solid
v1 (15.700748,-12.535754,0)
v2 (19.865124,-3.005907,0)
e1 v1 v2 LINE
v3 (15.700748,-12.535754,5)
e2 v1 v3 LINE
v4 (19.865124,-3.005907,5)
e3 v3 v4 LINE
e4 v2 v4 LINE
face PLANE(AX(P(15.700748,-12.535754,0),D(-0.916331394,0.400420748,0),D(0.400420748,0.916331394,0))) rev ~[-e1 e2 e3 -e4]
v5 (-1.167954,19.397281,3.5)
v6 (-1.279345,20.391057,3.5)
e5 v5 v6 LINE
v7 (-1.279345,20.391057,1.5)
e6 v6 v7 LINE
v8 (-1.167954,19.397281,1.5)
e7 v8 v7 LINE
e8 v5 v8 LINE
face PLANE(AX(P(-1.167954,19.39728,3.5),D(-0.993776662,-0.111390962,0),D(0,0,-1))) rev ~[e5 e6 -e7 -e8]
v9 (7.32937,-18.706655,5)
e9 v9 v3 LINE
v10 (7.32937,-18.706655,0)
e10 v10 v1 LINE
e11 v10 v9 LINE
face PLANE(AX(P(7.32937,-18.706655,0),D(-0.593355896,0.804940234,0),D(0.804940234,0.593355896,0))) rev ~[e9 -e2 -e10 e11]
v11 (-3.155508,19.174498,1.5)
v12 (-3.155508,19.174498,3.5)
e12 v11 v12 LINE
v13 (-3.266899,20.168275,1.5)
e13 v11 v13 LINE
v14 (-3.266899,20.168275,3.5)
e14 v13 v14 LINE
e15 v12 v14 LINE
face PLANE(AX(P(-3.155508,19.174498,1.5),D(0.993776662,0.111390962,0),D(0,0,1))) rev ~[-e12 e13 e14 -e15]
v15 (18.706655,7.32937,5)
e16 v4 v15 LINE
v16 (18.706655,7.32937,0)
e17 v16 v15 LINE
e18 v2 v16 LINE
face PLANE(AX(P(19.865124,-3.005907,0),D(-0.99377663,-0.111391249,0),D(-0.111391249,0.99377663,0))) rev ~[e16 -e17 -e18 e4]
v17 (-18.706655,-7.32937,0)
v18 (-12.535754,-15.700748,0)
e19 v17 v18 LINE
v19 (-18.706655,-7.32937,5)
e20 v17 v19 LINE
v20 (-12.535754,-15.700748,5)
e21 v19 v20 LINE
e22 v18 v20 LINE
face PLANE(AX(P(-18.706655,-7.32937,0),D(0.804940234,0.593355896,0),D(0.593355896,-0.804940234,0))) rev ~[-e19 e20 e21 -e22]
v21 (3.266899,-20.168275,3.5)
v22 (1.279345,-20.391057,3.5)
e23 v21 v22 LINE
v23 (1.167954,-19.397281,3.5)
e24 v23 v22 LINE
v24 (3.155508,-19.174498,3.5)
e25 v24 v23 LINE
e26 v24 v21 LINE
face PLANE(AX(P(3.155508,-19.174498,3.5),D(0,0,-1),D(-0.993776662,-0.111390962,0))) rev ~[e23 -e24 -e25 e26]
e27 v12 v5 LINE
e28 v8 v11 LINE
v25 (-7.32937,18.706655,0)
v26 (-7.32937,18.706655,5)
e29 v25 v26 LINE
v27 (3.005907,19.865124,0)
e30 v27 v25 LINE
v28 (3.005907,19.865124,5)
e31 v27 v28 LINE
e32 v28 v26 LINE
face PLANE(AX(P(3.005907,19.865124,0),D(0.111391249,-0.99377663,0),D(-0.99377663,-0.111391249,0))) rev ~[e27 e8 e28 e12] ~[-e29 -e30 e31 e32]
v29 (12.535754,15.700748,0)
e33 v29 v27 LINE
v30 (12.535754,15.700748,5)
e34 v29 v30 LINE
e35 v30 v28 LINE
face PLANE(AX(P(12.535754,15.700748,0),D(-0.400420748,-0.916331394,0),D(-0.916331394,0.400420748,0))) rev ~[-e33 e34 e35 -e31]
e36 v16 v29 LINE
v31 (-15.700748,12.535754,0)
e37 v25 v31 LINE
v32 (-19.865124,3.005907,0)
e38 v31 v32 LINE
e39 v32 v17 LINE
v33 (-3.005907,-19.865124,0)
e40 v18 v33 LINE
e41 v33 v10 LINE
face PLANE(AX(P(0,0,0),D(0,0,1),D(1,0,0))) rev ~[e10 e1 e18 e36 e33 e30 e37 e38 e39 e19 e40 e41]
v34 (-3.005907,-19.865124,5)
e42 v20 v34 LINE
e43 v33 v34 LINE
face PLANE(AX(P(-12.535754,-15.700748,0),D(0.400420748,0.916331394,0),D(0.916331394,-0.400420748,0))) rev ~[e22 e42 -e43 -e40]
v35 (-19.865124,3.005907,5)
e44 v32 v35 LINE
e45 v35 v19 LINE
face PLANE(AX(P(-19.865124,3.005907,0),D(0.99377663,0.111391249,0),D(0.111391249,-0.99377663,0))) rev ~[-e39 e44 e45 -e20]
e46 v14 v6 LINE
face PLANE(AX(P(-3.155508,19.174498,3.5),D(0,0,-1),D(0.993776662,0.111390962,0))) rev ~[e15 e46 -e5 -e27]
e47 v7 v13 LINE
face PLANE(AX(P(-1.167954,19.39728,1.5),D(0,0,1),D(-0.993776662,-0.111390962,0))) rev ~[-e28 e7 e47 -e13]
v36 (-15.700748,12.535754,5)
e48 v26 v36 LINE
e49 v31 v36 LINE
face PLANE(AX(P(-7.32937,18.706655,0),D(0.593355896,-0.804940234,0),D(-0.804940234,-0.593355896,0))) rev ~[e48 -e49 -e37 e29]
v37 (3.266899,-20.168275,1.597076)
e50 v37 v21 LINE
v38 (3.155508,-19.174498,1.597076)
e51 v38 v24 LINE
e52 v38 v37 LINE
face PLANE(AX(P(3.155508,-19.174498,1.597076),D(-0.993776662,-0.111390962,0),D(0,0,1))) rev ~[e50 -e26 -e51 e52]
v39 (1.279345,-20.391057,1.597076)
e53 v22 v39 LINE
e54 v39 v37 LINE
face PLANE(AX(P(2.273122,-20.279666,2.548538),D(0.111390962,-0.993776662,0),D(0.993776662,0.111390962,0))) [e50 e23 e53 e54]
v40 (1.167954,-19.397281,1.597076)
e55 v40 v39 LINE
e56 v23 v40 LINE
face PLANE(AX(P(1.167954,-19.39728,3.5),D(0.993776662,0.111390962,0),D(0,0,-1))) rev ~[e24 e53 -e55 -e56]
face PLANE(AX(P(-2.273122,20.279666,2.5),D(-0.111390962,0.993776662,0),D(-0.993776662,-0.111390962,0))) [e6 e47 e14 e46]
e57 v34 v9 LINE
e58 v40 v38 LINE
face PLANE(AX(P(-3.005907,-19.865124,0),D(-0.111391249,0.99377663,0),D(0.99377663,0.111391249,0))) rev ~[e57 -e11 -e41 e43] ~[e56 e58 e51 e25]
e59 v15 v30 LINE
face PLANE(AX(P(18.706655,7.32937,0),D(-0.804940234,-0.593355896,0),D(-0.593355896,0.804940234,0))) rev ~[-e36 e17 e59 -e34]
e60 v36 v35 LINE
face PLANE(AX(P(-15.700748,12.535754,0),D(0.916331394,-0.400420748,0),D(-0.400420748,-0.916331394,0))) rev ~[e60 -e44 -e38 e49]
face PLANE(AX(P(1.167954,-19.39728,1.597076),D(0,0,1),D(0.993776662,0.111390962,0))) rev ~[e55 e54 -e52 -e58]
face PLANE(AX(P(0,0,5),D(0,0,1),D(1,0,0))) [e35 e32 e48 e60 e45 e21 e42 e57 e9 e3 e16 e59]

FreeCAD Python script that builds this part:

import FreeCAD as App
import Part
import Sketcher

doc = App.newDocument("Part")
params = doc.addObject("Spreadsheet::Sheet", "Params")
for row, (alias, value) in enumerate([
    ("sketch1_length", "10.399999 mm"),
    ("pad1_length", "5 mm"),
    ("sketch2_width", "2 mm"),
    ("pad2_length", "1 mm"),
    ("sketch3_width", "2 mm"),
    ("pad3_length", "1 mm"),
], start=1):
    params.set(f"A{row}", alias)
    params.set(f"B{row}", "=" + value)
    params.setAlias(f"B{row}", alias)

body = doc.addObject("PartDesign::Body", "Body")

# Sketch on XY plane
sketch1 = body.newObject("Sketcher::SketchObject", "Sketch")
sketch1.AttachmentSupport = (doc.getObject("XY_Plane"), [""])
sketch1.MapMode = "FlatFace"
sketch1.addGeometry(Part.LineSegment(App.Vector(18.706655, 7.32937, 0), App.Vector(12.535754, 15.700748, 0)), False)
sketch1.addGeometry(Part.LineSegment(App.Vector(12.535754, 15.700748, 0), App.Vector(3.005907, 19.865124, 0)), False)
sketch1.addGeometry(Part.LineSegment(App.Vector(3.005907, 19.865124, 0), App.Vector(-7.32937, 18.706655, 0)), False)
sketch1.addGeometry(Part.LineSegment(App.Vector(-7.32937, 18.706655, 0), App.Vector(-15.700748, 12.535754, 0)), False)
sketch1.addGeometry(Part.LineSegment(App.Vector(-15.700748, 12.535754, 0), App.Vector(-19.865124, 3.005907, 0)), False)
sketch1.addGeometry(Part.LineSegment(App.Vector(-19.865124, 3.005907, 0), App.Vector(-18.706655, -7.32937, 0)), False)
sketch1.addGeometry(Part.LineSegment(App.Vector(-18.706655, -7.32937, 0), App.Vector(-12.535754, -15.700748, 0)), False)
sketch1.addGeometry(Part.LineSegment(App.Vector(-12.535754, -15.700748, 0), App.Vector(-3.005907, -19.865124, 0)), False)
sketch1.addGeometry(Part.LineSegment(App.Vector(-3.005907, -19.865124, 0), App.Vector(7.32937, -18.706655, 0)), False)
sketch1.addGeometry(Part.LineSegment(App.Vector(7.32937, -18.706655, 0), App.Vector(15.700748, -12.535754, 0)), False)
sketch1.addGeometry(Part.LineSegment(App.Vector(15.700748, -12.535754, 0), App.Vector(19.865124, -3.005907, 0)), False)
sketch1.addGeometry(Part.LineSegment(App.Vector(19.865124, -3.005907, 0), App.Vector(18.706655, 7.32937, 0)), False)
sketch1.addConstraint(Sketcher.Constraint("Coincident", 0, 2, 1, 1))
sketch1.addConstraint(Sketcher.Constraint("Coincident", 1, 2, 2, 1))
sketch1.addConstraint(Sketcher.Constraint("Coincident", 2, 2, 3, 1))
sketch1.addConstraint(Sketcher.Constraint("Coincident", 3, 2, 4, 1))
sketch1.addConstraint(Sketcher.Constraint("Coincident", 4, 2, 5, 1))
sketch1.addConstraint(Sketcher.Constraint("Coincident", 5, 2, 6, 1))
sketch1.addConstraint(Sketcher.Constraint("Coincident", 6, 2, 7, 1))
sketch1.addConstraint(Sketcher.Constraint("Coincident", 7, 2, 8, 1))
sketch1.addConstraint(Sketcher.Constraint("Coincident", 8, 2, 9, 1))
sketch1.addConstraint(Sketcher.Constraint("Coincident", 9, 2, 10, 1))
sketch1.addConstraint(Sketcher.Constraint("Coincident", 10, 2, 11, 1))
sketch1.addConstraint(Sketcher.Constraint("Coincident", 11, 2, 0, 1))
sketch1.addConstraint(Sketcher.Constraint("Symmetric", 0, 2, 6, 2, -1, 1))
sketch1.addConstraint(Sketcher.Constraint("Symmetric", 1, 2, 7, 2, -1, 1))
sketch1.addConstraint(Sketcher.Constraint("Symmetric", 2, 2, 8, 2, -1, 1))
sketch1.addConstraint(Sketcher.Constraint("Symmetric", 3, 2, 9, 2, -1, 1))
sketch1.addConstraint(Sketcher.Constraint("Symmetric", 4, 2, 10, 2, -1, 1))
sketch1.addConstraint(Sketcher.Constraint("Symmetric", 5, 2, 11, 2, -1, 1))
sketch1.addConstraint(Sketcher.Constraint("Perpendicular", 0, 3))
sketch1.addConstraint(Sketcher.Constraint("Perpendicular", 1, 4))
sketch1.addConstraint(Sketcher.Constraint("Perpendicular", 2, 5))
sketch1.addConstraint(Sketcher.Constraint("Equal", 0, 1))
sketch1.addConstraint(Sketcher.Constraint("Equal", 1, 2))
sketch1.addConstraint(Sketcher.Constraint("Equal", 2, 3))
sketch1.addConstraint(Sketcher.Constraint("Equal", 3, 4))
sketch1.addConstraint(Sketcher.Constraint("Equal", 4, 5))
sketch1.addConstraint(Sketcher.Constraint("Distance", 0, 10.399999))
sketch1.addConstraint(Sketcher.Constraint("DistanceY", 3, 2, 2, 2, 6.170901))
sketch1.addConstraint(Sketcher.Constraint("DistanceY", -1, 1, 0, 2, 15.700748))
sketch1.addConstraint(Sketcher.Constraint("DistanceY", 2, 2, 1, 2, 1.158469))
sketch1.setExpression("Constraints[26]", "Params.sketch1_length")
pad1 = body.newObject("PartDesign::Pad", "Pad")
pad1.Profile = sketch1
pad1.setExpression("Length", "Params.pad1_length")

# Sketch on an angled plane
sketch2 = body.newObject("Sketcher::SketchObject", "Sketch001")
sketch2.Placement = App.Placement(App.Vector(-2.161731, 19.285889, 0), App.Rotation(App.Vector(-0.993776662, -0.111390962, 0), App.Vector(0, 0, 1), App.Vector(-0.111390962, 0.993776662, 0), "ZXY"))
sketch2.addGeometry(Part.LineSegment(App.Vector(1, 3.5, 0), App.Vector(-1, 3.5, 0)), False)
sketch2.addGeometry(Part.LineSegment(App.Vector(-1, 3.5, 0), App.Vector(-1, 1.5, 0)), False)
sketch2.addGeometry(Part.LineSegment(App.Vector(-1, 1.5, 0), App.Vector(1, 1.5, 0)), False)
sketch2.addGeometry(Part.LineSegment(App.Vector(1, 1.5, 0), App.Vector(1, 3.5, 0)), False)
sketch2.addConstraint(Sketcher.Constraint("Coincident", 0, 2, 1, 1))
sketch2.addConstraint(Sketcher.Constraint("Coincident", 1, 2, 2, 1))
sketch2.addConstraint(Sketcher.Constraint("Coincident", 2, 2, 3, 1))
sketch2.addConstraint(Sketcher.Constraint("Coincident", 3, 2, 0, 1))
sketch2.addConstraint(Sketcher.Constraint("Horizontal", 0))
sketch2.addConstraint(Sketcher.Constraint("Vertical", 1))
sketch2.addConstraint(Sketcher.Constraint("Horizontal", 2))
sketch2.addConstraint(Sketcher.Constraint("Vertical", 3))
sketch2.addConstraint(Sketcher.Constraint("Equal", 2, 1))
sketch2.addConstraint(Sketcher.Constraint("DistanceX", 0, 2, 0, 1, 2.0))
sketch2.addConstraint(Sketcher.Constraint("DistanceX", 0, 2, -1, 1, 1.0))
sketch2.addConstraint(Sketcher.Constraint("DistanceY", -1, 1, 0, 2, 3.5))
sketch2.setExpression("Constraints[9]", "Params.sketch2_width")
pad2 = body.newObject("PartDesign::Pad", "Pad001")
pad2.Profile = sketch2
pad2.setExpression("Length", "Params.pad2_length")

# Sketch on an angled plane
sketch3 = body.newObject("Sketcher::SketchObject", "Sketch002")
sketch3.Placement = App.Placement(App.Vector(2.161731, -19.285889, 0), App.Rotation(App.Vector(0.993776662, 0.111390962, 0), App.Vector(0, 0, 1), App.Vector(0.111390962, -0.993776662, 0), "ZXY"))
sketch3.addGeometry(Part.LineSegment(App.Vector(1, 3.5, 0), App.Vector(-1, 3.5, 0)), False)
sketch3.addGeometry(Part.LineSegment(App.Vector(-1, 3.5, 0), App.Vector(-1, 1.597076, 0)), False)
sketch3.addGeometry(Part.LineSegment(App.Vector(-1, 1.597076, 0), App.Vector(1, 1.597076, 0)), False)
sketch3.addGeometry(Part.LineSegment(App.Vector(1, 1.597076, 0), App.Vector(1, 3.5, 0)), False)
sketch3.addConstraint(Sketcher.Constraint("Coincident", 0, 2, 1, 1))
sketch3.addConstraint(Sketcher.Constraint("Coincident", 1, 2, 2, 1))
sketch3.addConstraint(Sketcher.Constraint("Coincident", 2, 2, 3, 1))
sketch3.addConstraint(Sketcher.Constraint("Coincident", 3, 2, 0, 1))
sketch3.addConstraint(Sketcher.Constraint("Horizontal", 0))
sketch3.addConstraint(Sketcher.Constraint("Vertical", 1))
sketch3.addConstraint(Sketcher.Constraint("Horizontal", 2))
sketch3.addConstraint(Sketcher.Constraint("Vertical", 3))
sketch3.addConstraint(Sketcher.Constraint("DistanceX", 0, 2, 0, 1, 2.0))
sketch3.addConstraint(Sketcher.Constraint("DistanceX", 0, 2, -1, 1, 1.0))
sketch3.addConstraint(Sketcher.Constraint("DistanceY", -1, 1, 0, 2, 3.5))
sketch3.addConstraint(Sketcher.Constraint("DistanceY", 1, 2, 1, 1, 1.902924))
sketch3.setExpression("Constraints[8]", "Params.sketch3_width")
pad3 = body.newObject("PartDesign::Pad", "Pad002")
pad3.Profile = sketch3
pad3.setExpression("Length", "Params.pad3_length")

doc.recompute()
